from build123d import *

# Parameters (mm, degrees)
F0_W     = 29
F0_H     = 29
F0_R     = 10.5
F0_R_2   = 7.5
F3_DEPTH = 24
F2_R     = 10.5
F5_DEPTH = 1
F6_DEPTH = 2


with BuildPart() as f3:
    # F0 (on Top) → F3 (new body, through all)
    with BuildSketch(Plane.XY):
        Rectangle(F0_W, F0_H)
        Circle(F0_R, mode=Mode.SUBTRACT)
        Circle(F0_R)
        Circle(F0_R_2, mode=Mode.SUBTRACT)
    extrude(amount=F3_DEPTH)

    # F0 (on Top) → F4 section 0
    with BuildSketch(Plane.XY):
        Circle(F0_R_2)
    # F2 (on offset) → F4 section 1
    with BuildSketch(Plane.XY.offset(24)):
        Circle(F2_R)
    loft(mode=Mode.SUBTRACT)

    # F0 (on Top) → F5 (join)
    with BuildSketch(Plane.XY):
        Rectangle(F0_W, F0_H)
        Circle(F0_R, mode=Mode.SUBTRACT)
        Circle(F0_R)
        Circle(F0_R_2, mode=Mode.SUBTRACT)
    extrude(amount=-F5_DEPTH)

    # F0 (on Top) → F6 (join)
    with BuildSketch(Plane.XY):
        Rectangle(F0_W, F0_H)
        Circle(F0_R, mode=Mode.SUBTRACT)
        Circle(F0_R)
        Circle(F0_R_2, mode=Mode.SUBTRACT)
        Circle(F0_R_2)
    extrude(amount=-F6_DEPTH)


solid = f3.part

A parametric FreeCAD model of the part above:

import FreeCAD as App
import Part
import Sketcher
Q = App.Units.Quantity


def add_polygon(sketch, points):
    """Adds a closed chain of lines whose ends are joined by coincident constraints."""
    first, n = sketch.GeometryCount, len(points)
    for a, b in zip(points, points[1:] + points[:1]):
        sketch.addGeometry(Part.LineSegment(App.Vector(*a, 0), App.Vector(*b, 0)), False)
    for i in range(n):
        sketch.addConstraint(Sketcher.Constraint("Coincident", first + i, 2, first + (i + 1) % n, 1))

doc = App.newDocument("Part")
body = doc.addObject("PartDesign::Body", "Body")

# Sketch on XY plane
sketch1 = body.newObject("Sketcher::SketchObject", "Sketch")
sketch1.AttachmentSupport = (doc.getObject("XY_Plane"), [""])
sketch1.MapMode = "FlatFace"
add_polygon(sketch1, [(-14, 14), (-14, -14), (14, -14), (14, 14)])  # lines 0-3
sketch1.addGeometry(Part.Circle(App.Vector(0, 0, 0), App.Vector(0, 0, 1), 8), False)  # 4
sketch1.addConstraint([
    Sketcher.Constraint("Vertical", 0),
    Sketcher.Constraint("Horizontal", 1),
    Sketcher.Constraint("Vertical", 2),
    Sketcher.Constraint("Horizontal", 3),
    Sketcher.Constraint("Coincident", 4, 3, -1, 1),
    Sketcher.Constraint("Symmetric", 0, 2, 2, 2, -1, 1),
    Sketcher.Constraint("Equal", 3, 0),
    Sketcher.Constraint("Diameter", 4, Q("15 mm")),
    Sketcher.Constraint("DistanceX", 1, 1, 1, 2, Q("29 mm")),
])
pad1 = body.newObject("PartDesign::Pad", "Pad")
pad1.Profile = sketch1
pad1.Length = 24

# Sketch on XY plane
sketch2 = body.newObject("Sketcher::SketchObject", "Sketch001")
sketch2.AttachmentSupport = (doc.getObject("XY_Plane"), [""])
sketch2.MapMode = "FlatFace"
sketch2.addGeometry(Part.Circle(App.Vector(0, 0, 0), App.Vector(0, 0, 1), 8), False)
sketch2.addConstraint([
    Sketcher.Constraint("Coincident", 0, 3, -1, 1),
    Sketcher.Constraint("Diameter", 0, Q("15 mm")),
])

# Sketch on XY plane
sketch3 = body.newObject("Sketcher::SketchObject", "Sketch002")
sketch3.AttachmentSupport = (doc.getObject("XY_Plane"), [""])
sketch3.MapMode = "FlatFace"
sketch3.AttachmentOffset = App.Placement(App.Vector(0, 0, 24), App.Rotation())
sketch3.addGeometry(Part.Circle(App.Vector(0, 0, 0), App.Vector(0, 0, 1), 10), False)
sketch3.addConstraint([
    Sketcher.Constraint("Coincident", 0, 3, -1, 1),
    Sketcher.Constraint("Diameter", 0, Q("21 mm")),
])

subtractiveloft = body.newObject("PartDesign::SubtractiveLoft", "SubtractiveLoft")
subtractiveloft.Profile = sketch2
subtractiveloft.Sections = [sketch3]

# Sketch on XY plane
sketch4 = body.newObject("Sketcher::SketchObject", "Sketch003")
sketch4.AttachmentSupport = (doc.getObject("XY_Plane"), [""])
sketch4.MapMode = "FlatFace"
add_polygon(sketch4, [(-14, 14), (-14, -14), (14, -14), (14, 14)])  # lines 0-3
sketch4.addGeometry(Part.Circle(App.Vector(0, 0, 0), App.Vector(0, 0, 1), 8), False)  # 4
sketch4.addConstraint([
    Sketcher.Constraint("Vertical", 0),
    Sketcher.Constraint("Horizontal", 1),
    Sketcher.Constraint("Vertical", 2),
    Sketcher.Constraint("Horizontal", 3),
    Sketcher.Constraint("Coincident", 4, 3, -1, 1),
    Sketcher.Constraint("Symmetric", 0, 2, 2, 2, -1, 1),
    Sketcher.Constraint("Equal", 3, 0),
    Sketcher.Constraint("Diameter", 4, Q("15 mm")),
    Sketcher.Constraint("DistanceX", 1, 1, 1, 2, Q("29 mm")),
])
pad2 = body.newObject("PartDesign::Pad", "Pad001")
pad2.Profile = sketch4
pad2.Length = 1
pad2.Reversed = True

# Sketch on XY plane
sketch5 = body.newObject("Sketcher::SketchObject", "Sketch004")
sketch5.AttachmentSupport = (doc.getObject("XY_Plane"), [""])
sketch5.MapMode = "FlatFace"
add_polygon(sketch5, [(-14, 14), (-14, -14), (14, -14), (14, 14)])  # lines 0-3
sketch5.addConstraint([
    Sketcher.Constraint("Vertical", 0),
    Sketcher.Constraint("Horizontal", 1),
    Sketcher.Constraint("Vertical", 2),
    Sketcher.Constraint("Horizontal", 3),
    Sketcher.Constraint("Symmetric", 0, 2, 2, 2, -1, 1),
    Sketcher.Constraint("Equal", 3, 0),
    Sketcher.Constraint("DistanceX", 1, 1, 1, 2, Q("29 mm")),
])
pad3 = body.newObject("PartDesign::Pad", "Pad002")
pad3.Profile = sketch5
pad3.Length = 2
pad3.Reversed = True

doc.recompute()
